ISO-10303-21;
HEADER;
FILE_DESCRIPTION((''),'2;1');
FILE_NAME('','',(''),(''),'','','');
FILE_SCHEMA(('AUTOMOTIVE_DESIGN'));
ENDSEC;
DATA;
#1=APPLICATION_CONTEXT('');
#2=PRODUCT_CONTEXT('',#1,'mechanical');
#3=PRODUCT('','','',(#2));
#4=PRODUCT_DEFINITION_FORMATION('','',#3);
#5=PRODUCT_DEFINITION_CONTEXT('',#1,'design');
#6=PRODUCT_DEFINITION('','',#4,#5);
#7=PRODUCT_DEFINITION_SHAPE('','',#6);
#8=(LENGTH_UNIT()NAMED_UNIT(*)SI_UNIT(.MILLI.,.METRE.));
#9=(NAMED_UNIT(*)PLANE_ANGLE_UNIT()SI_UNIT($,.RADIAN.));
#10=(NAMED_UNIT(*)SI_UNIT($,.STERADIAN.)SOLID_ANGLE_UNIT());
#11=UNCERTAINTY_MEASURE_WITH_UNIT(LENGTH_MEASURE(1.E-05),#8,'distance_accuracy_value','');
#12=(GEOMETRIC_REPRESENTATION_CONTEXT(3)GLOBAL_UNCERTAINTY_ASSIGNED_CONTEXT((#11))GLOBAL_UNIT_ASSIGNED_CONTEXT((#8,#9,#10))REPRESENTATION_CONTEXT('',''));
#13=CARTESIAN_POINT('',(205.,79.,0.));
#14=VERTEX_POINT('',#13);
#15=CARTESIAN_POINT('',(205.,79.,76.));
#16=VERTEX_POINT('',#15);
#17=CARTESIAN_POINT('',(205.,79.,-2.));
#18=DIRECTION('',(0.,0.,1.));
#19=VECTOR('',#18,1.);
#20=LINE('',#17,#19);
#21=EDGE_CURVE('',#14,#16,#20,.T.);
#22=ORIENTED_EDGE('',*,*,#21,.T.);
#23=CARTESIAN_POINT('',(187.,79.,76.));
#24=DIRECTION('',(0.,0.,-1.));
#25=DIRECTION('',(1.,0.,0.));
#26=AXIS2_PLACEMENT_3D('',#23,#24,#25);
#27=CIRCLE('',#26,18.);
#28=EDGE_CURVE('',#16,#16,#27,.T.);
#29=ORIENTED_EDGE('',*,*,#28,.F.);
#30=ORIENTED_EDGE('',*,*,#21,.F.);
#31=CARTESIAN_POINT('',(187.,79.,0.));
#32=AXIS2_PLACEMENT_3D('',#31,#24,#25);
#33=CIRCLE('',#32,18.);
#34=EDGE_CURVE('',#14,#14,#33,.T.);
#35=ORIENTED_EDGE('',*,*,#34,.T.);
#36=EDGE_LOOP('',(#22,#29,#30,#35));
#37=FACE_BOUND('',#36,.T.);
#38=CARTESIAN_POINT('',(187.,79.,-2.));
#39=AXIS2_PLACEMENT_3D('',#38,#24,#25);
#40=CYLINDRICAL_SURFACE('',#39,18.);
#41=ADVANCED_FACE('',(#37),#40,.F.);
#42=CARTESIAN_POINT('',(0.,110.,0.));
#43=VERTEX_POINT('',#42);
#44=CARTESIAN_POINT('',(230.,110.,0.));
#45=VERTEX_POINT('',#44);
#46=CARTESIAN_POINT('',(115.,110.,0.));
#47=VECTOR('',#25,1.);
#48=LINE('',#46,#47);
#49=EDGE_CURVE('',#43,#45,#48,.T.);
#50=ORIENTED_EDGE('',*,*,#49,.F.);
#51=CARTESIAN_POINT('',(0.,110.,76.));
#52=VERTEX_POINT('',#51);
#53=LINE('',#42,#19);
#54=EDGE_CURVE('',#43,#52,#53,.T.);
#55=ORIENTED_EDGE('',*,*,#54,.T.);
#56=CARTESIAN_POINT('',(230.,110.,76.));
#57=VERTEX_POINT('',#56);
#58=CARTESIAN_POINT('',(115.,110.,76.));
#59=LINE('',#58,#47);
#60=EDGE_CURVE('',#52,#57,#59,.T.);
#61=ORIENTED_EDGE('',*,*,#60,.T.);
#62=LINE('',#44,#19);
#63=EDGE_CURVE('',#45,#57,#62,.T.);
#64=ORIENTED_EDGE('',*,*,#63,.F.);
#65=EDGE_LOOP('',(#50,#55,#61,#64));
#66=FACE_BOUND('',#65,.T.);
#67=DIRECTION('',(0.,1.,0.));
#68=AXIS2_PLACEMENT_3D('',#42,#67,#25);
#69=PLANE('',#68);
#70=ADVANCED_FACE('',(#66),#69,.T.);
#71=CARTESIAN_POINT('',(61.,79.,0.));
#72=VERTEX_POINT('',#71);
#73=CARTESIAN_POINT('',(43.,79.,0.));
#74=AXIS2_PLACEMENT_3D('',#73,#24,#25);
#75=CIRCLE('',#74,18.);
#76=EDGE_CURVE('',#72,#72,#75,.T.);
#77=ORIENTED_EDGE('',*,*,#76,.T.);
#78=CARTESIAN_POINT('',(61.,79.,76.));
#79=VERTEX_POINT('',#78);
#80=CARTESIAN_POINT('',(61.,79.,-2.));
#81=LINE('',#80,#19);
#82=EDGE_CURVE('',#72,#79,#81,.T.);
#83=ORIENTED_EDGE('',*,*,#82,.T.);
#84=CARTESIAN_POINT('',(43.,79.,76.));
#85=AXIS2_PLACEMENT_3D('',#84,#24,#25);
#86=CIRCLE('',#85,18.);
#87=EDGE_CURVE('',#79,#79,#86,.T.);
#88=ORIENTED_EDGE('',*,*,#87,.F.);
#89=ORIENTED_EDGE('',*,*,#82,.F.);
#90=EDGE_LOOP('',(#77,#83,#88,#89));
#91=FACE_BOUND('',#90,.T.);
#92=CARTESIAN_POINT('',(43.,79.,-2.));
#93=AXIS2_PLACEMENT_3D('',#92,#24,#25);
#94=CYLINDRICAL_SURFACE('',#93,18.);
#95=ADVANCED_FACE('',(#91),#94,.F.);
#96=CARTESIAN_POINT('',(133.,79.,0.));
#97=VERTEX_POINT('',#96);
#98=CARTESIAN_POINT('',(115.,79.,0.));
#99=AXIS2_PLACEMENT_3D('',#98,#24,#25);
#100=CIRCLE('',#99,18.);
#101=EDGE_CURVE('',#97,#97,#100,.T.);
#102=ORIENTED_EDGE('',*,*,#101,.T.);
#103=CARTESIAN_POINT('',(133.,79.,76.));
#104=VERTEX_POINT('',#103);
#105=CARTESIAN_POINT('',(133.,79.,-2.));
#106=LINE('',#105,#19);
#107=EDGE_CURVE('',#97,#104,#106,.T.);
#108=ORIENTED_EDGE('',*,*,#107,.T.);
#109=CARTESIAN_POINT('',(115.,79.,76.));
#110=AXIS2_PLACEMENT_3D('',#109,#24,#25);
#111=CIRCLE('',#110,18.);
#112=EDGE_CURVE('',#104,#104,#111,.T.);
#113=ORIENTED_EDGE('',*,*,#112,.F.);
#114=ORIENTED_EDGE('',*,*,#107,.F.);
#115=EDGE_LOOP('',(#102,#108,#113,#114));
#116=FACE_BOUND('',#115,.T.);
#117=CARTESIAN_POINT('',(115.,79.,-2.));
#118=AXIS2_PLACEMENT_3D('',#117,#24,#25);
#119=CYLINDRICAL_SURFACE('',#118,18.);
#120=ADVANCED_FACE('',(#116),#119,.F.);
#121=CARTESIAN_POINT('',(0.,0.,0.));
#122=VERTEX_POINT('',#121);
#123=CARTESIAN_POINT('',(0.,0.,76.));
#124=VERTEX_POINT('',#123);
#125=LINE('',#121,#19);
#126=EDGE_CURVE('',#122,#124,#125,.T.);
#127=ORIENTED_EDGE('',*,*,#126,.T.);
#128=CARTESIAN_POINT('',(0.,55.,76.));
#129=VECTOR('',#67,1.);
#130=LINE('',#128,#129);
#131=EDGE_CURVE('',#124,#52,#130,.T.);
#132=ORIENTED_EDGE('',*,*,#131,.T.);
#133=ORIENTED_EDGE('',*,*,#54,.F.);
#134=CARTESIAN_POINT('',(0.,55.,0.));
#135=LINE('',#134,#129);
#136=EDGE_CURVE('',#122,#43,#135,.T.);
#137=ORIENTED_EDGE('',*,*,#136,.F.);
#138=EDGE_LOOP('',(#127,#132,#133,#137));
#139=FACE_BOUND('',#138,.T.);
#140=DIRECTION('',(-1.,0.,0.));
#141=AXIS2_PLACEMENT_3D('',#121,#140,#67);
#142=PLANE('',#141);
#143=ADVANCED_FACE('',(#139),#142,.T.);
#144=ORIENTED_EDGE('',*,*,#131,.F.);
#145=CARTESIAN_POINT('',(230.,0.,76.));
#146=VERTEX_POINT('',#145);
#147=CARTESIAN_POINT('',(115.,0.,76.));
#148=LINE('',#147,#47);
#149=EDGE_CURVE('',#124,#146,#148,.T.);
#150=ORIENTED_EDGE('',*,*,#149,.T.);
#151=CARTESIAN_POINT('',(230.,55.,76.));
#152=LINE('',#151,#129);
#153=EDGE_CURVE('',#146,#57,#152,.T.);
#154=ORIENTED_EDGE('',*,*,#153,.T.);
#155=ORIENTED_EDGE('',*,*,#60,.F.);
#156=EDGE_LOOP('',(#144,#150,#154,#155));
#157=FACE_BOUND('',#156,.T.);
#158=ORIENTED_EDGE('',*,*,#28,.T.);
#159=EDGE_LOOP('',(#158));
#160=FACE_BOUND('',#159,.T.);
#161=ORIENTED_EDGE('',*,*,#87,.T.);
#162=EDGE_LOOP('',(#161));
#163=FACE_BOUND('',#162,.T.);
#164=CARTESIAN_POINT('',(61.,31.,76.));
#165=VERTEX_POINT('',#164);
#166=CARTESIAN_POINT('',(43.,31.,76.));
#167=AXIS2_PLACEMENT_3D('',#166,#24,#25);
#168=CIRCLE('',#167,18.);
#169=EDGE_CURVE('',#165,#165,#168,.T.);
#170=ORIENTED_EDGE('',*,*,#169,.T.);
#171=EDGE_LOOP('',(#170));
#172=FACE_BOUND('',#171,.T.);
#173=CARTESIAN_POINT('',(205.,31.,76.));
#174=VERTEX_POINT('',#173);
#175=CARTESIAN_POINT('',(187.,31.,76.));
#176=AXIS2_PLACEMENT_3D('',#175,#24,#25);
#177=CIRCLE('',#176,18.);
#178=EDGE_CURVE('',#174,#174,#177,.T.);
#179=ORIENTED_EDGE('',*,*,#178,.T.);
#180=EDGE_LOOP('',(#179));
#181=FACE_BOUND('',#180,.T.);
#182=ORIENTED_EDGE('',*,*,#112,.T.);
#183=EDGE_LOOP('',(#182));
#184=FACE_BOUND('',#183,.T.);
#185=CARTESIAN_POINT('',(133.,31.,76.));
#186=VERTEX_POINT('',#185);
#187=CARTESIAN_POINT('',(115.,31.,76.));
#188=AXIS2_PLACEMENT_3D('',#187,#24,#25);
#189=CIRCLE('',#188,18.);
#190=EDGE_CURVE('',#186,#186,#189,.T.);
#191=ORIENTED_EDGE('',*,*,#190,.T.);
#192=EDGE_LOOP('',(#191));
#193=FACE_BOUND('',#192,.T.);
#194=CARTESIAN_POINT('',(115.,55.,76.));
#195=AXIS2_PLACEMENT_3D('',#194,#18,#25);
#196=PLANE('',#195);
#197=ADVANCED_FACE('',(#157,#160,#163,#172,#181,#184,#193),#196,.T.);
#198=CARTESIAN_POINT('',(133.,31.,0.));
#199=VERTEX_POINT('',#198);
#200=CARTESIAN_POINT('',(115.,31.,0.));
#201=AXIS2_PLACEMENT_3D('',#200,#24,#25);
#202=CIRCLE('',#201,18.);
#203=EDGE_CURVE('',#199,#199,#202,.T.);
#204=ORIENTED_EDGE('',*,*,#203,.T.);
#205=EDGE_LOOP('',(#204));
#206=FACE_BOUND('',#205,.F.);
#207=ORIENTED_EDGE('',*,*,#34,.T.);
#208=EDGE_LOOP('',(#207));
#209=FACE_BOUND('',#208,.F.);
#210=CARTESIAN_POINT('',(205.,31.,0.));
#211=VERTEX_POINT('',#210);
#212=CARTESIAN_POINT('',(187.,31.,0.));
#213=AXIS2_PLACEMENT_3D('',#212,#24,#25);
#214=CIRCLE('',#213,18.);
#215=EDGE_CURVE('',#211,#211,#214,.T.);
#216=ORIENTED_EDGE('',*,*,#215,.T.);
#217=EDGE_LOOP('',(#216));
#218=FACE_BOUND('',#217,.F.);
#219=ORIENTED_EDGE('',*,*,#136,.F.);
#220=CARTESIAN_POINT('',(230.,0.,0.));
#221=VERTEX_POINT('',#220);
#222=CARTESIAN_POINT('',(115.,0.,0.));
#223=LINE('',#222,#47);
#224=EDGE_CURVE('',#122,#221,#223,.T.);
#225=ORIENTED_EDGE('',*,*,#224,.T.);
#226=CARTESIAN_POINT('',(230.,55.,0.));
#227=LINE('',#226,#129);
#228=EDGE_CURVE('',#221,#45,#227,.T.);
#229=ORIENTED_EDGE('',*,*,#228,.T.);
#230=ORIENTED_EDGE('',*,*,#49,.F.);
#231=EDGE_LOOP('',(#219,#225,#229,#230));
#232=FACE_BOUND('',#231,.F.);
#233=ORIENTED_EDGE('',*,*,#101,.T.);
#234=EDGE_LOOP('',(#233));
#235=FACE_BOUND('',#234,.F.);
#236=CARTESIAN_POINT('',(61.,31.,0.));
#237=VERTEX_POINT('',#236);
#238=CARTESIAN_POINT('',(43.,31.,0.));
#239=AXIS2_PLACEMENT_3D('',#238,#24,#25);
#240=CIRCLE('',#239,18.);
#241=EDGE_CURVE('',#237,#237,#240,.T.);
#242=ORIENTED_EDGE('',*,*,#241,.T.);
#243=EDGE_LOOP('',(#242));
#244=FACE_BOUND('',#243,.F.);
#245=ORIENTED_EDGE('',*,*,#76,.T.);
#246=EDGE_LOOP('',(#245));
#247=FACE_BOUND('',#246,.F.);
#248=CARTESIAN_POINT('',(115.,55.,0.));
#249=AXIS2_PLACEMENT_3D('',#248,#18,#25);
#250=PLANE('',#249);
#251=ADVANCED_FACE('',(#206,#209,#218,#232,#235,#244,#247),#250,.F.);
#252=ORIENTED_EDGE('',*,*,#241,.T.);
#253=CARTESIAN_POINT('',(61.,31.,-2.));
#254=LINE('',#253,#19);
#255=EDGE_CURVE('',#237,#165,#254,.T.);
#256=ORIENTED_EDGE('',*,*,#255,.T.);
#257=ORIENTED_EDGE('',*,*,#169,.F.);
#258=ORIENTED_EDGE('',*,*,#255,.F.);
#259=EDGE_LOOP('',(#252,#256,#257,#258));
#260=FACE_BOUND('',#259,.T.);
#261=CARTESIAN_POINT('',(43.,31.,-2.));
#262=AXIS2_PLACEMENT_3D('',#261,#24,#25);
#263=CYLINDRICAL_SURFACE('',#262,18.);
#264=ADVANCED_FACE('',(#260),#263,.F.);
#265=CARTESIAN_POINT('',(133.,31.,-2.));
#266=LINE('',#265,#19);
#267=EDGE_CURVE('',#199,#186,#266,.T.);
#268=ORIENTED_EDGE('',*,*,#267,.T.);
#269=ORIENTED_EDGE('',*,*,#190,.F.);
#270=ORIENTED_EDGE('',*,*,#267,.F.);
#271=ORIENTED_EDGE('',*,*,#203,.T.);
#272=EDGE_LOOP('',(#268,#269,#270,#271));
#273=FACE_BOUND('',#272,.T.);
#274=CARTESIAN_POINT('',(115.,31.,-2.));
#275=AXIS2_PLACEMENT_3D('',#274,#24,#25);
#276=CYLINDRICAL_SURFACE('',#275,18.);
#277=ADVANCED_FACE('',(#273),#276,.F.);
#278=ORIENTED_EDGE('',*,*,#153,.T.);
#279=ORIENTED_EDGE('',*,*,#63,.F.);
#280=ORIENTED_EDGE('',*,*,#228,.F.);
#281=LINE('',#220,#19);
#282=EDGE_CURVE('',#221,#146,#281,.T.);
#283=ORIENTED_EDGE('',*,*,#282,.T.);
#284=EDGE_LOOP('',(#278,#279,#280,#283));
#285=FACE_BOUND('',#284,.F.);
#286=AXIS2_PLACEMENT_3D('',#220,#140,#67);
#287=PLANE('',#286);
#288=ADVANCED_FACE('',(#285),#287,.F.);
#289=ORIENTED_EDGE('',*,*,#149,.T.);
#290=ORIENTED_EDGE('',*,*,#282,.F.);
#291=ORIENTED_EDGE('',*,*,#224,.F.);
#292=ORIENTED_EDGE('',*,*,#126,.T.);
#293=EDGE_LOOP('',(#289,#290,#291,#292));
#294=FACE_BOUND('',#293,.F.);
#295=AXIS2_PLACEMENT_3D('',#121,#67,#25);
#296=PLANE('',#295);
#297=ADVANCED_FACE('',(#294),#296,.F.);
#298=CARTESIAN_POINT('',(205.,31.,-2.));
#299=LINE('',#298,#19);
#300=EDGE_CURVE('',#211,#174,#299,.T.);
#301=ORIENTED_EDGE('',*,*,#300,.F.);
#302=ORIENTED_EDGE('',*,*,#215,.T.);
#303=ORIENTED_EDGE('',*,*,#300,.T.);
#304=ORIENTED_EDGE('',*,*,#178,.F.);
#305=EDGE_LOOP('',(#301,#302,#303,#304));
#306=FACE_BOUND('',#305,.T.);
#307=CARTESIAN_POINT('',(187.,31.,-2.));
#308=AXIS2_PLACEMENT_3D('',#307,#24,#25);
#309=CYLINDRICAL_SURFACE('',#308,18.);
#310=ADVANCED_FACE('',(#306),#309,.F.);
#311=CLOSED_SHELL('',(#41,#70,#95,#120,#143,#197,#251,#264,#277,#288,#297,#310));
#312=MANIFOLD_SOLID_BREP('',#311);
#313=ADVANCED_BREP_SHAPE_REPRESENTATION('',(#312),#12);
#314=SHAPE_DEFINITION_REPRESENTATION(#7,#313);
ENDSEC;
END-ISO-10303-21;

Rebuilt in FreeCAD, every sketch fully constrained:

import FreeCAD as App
import Part
import Sketcher

V = App.Vector

doc = App.newDocument("Part")
body = doc.addObject("PartDesign::Body", "Body")

# Sketch on XY plane
sketch1 = body.newObject("Sketcher::SketchObject", "Sketch")
sketch1.AttachmentSupport = (doc.getObject("XY_Plane"), [""])
sketch1.MapMode = "FlatFace"
sketch1.AttachmentOffset = App.Placement(V(0, 0, -2), App.Rotation())
sketch1.addGeometry(Part.Circle(V(0, 48, 0), V(0, 0, 1), 18), False)
sketch1.addConstraint(Sketcher.Constraint("PointOnObject", 0, 3, -2))
sketch1.addConstraint(Sketcher.Constraint("Diameter", 0, 36.0))
sketch1.addConstraint(Sketcher.Constraint("DistanceY", -1, 1, 0, 3, 48.0))
pad1 = body.newObject("PartDesign::Pad", "Pad")
pad1.Profile = sketch1
pad1.Length = 80
body2 = doc.addObject("PartDesign::Body", "Body001")

# Sketch on XY plane
sketch2 = body2.newObject("Sketcher::SketchObject", "Sketch001")
sketch2.AttachmentSupport = (doc.getObject("XY_Plane001"), [""])
sketch2.MapMode = "FlatFace"
sketch2.AttachmentOffset = App.Placement(V(0, 0, -2), App.Rotation())
sketch2.addGeometry(Part.Circle(V(72, 48, 0), V(0, 0, 1), 18), False)
sketch2.addConstraint(Sketcher.Constraint("Diameter", 0, 36.0))
sketch2.addConstraint(Sketcher.Constraint("DistanceX", -1, 1, 0, 3, 72.0))
sketch2.addConstraint(Sketcher.Constraint("DistanceY", -1, 1, 0, 3, 48.0))
pad2 = body2.newObject("PartDesign::Pad", "Pad001")
pad2.Profile = sketch2
pad2.Length = 80
body3 = doc.addObject("PartDesign::Body", "Body002")

# Sketch on XY plane
sketch3 = body3.newObject("Sketcher::SketchObject", "Sketch002")
sketch3.AttachmentSupport = (doc.getObject("XY_Plane002"), [""])
sketch3.MapMode = "FlatFace"
sketch3.AttachmentOffset = App.Placement(V(0, 0, -2), App.Rotation())
sketch3.addGeometry(Part.Circle(V(72, 0, 0), V(0, 0, 1), 18), False)
sketch3.addConstraint(Sketcher.Constraint("PointOnObject", 0, 3, -1))
sketch3.addConstraint(Sketcher.Constraint("Diameter", 0, 36.0))
sketch3.addConstraint(Sketcher.Constraint("DistanceX", -1, 1, 0, 3, 72.0))
pad3 = body3.newObject("PartDesign::Pad", "Pad002")
pad3.Profile = sketch3
pad3.Length = 80
body4 = doc.addObject("PartDesign::Body", "Body003")

# Sketch on XY plane
sketch4 = body4.newObject("Sketcher::SketchObject", "Sketch003")
sketch4.AttachmentSupport = (doc.getObject("XY_Plane003"), [""])
sketch4.MapMode = "FlatFace"
sketch4.AttachmentOffset = App.Placement(V(0, 0, -2), App.Rotation())
sketch4.addGeometry(Part.Circle(V(144, 48, 0), V(0, 0, 1), 18), False)
sketch4.addConstraint(Sketcher.Constraint("Diameter", 0, 36.0))
sketch4.addConstraint(Sketcher.Constraint("DistanceX", -1, 1, 0, 3, 144.0))
sketch4.addConstraint(Sketcher.Constraint("DistanceY", -1, 1, 0, 3, 48.0))
pad4 = body4.newObject("PartDesign::Pad", "Pad003")
pad4.Profile = sketch4
pad4.Length = 80
body5 = doc.addObject("PartDesign::Body", "Body004")

# Sketch on XY plane
sketch5 = body5.newObject("Sketcher::SketchObject", "Sketch004")
sketch5.AttachmentSupport = (doc.getObject("XY_Plane004"), [""])
sketch5.MapMode = "FlatFace"
sketch5.AttachmentOffset = App.Placement(V(0, 0, -2), App.Rotation())
sketch5.addGeometry(Part.Circle(V(144, 0, 0), V(0, 0, 1), 18), False)
sketch5.addConstraint(Sketcher.Constraint("PointOnObject", 0, 3, -1))
sketch5.addConstraint(Sketcher.Constraint("Diameter", 0, 36.0))
sketch5.addConstraint(Sketcher.Constraint("DistanceX", -1, 1, 0, 3, 144.0))
pad5 = body5.newObject("PartDesign::Pad", "Pad004")
pad5.Profile = sketch5
pad5.Length = 80
body6 = doc.addObject("PartDesign::Body", "Body005")
body6.AllowCompound = True

# Sketch on XY plane
sketch6 = body6.newObject("Sketcher::SketchObject", "Sketch005")
sketch6.AttachmentSupport = (doc.getObject("XY_Plane005"), [""])
sketch6.MapMode = "FlatFace"
sketch6.AttachmentOffset = App.Placement(V(0, 0, -2), App.Rotation())
sketch6.addGeometry(Part.Circle(V(0, 0, 0), V(0, 0, 1), 18), False)
sketch6.addConstraint(Sketcher.Constraint("Coincident", 0, 3, -1, 1))
sketch6.addConstraint(Sketcher.Constraint("Diameter", 0, 36.0))
pad6 = body6.newObject("PartDesign::Pad", "Pad005")
pad6.Profile = sketch6
pad6.Length = 80
doc.recompute()

boolean = body6.newObject("PartDesign::Boolean", "Boolean")
boolean.Type = "Fuse"
boolean.addObjects([body])
doc.recompute()

boolean2 = body6.newObject("PartDesign::Boolean", "Boolean001")
boolean2.Type = "Fuse"
boolean2.addObjects([body2])
doc.recompute()

boolean3 = body6.newObject("PartDesign::Boolean", "Boolean002")
boolean3.Type = "Fuse"
boolean3.addObjects([body3])
doc.recompute()

boolean4 = body6.newObject("PartDesign::Boolean", "Boolean003")
boolean4.Type = "Fuse"
boolean4.addObjects([body4])
doc.recompute()

boolean5 = body6.newObject("PartDesign::Boolean", "Boolean004")
boolean5.Type = "Fuse"
boolean5.addObjects([body5])
body7 = doc.addObject("PartDesign::Body", "Body006")
body7.AllowCompound = True
doc.recompute()

body6.Placement = App.Placement(V(43, 31, 0), App.Rotation(V(0, 0, 1), 0))
boolean6 = body7.newObject("PartDesign::Boolean", "Boolean005")
boolean6.Type = "Fuse"
boolean6.addObjects([body6])
body8 = doc.addObject("PartDesign::Body", "Body007")

# Sketch on XY plane
sketch7 = body8.newObject("Sketcher::SketchObject", "Sketch006")
sketch7.AttachmentSupport = (doc.getObject("XY_Plane007"), [""])
sketch7.MapMode = "FlatFace"
sketch7.addGeometry(Part.LineSegment(V(0, 110, 0), V(0, 0, 0)), False)
sketch7.addGeometry(Part.LineSegment(V(0, 0, 0), V(230, 0, 0)), False)
sketch7.addGeometry(Part.LineSegment(V(230, 0, 0), V(230, 110, 0)), False)
sketch7.addGeometry(Part.LineSegment(V(230, 110, 0), V(0, 110, 0)), False)
sketch7.addConstraint(Sketcher.Constraint("Coincident", 0, 2, 1, 1))
sketch7.addConstraint(Sketcher.Constraint("Coincident", 1, 2, 2, 1))
sketch7.addConstraint(Sketcher.Constraint("Coincident", 2, 2, 3, 1))
sketch7.addConstraint(Sketcher.Constraint("Coincident", 3, 2, 0, 1))
sketch7.addConstraint(Sketcher.Constraint("Vertical", 0))
sketch7.addConstraint(Sketcher.Constraint("Horizontal", 1))
sketch7.addConstraint(Sketcher.Constraint("Vertical", 2))
sketch7.addConstraint(Sketcher.Constraint("Horizontal", 3))
sketch7.addConstraint(Sketcher.Constraint("Coincident", 0, 2, -1, 1))
sketch7.addConstraint(Sketcher.Constraint("DistanceX", 1, 1, 1, 2, 230.0))
sketch7.addConstraint(Sketcher.Constraint("DistanceY", 0, 2, 0, 1, 110.0))
pad7 = body8.newObject("PartDesign::Pad", "Pad006")
pad7.Profile = sketch7
pad7.Length = 76
doc.recompute()

boolean7 = body8.newObject("PartDesign::Boolean", "Boolean006")
boolean7.Type = "Cut"
boolean7.addObjects([body7])

doc.recompute()
